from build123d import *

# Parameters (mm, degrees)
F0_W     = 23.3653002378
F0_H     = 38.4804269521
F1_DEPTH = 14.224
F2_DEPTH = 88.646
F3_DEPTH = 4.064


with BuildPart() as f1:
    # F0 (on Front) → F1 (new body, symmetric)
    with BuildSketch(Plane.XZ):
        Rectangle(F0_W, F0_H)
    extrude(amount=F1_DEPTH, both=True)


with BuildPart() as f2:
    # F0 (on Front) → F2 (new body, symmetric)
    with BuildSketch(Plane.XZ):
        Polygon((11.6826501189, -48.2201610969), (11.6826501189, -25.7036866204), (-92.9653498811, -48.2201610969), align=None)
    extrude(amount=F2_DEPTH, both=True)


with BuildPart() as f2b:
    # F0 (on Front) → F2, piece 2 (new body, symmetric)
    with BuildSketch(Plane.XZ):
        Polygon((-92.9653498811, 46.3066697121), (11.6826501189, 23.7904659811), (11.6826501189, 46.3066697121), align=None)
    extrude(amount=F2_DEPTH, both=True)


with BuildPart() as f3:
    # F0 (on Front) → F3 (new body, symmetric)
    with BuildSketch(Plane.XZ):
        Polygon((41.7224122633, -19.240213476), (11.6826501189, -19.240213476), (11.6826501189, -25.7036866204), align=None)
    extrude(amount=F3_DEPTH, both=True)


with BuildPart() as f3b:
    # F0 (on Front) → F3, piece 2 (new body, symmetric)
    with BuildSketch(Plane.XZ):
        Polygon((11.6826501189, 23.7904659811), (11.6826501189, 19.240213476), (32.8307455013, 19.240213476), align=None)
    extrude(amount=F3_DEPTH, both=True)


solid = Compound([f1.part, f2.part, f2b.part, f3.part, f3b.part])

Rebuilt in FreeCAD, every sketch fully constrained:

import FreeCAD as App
import Part
import Sketcher
Q = App.Units.Quantity

doc = App.newDocument("Part")
body = doc.addObject("PartDesign::Body", "Body")

sketch1 = body.newObject("Sketcher::SketchObject", "Sketch")
sketch1.AttachmentSupport = (doc.getObject("XZ_Plane"), [""])
sketch1.MapMode = "FlatFace"
sketch1.addGeometry([
    Part.LineSegment(App.Vector(-12, 19, 0), App.Vector(-12, -19, 0)),
    Part.LineSegment(App.Vector(-12, -19, 0), App.Vector(12, -19, 0)),
    Part.LineSegment(App.Vector(12, -19, 0), App.Vector(12, 19, 0)),
    Part.LineSegment(App.Vector(12, 19, 0), App.Vector(-12, 19, 0)),
], False)
sketch1.addConstraint([
    Sketcher.Constraint("Coincident", 0, 2, 1, 1),
    Sketcher.Constraint("Coincident", 1, 2, 2, 1),
    Sketcher.Constraint("Coincident", 2, 2, 3, 1),
    Sketcher.Constraint("Coincident", 3, 2, 0, 1),
    Sketcher.Constraint("Vertical", 0),
    Sketcher.Constraint("Horizontal", 1),
    Sketcher.Constraint("Vertical", 2),
    Sketcher.Constraint("Horizontal", 3),
    Sketcher.Constraint("Symmetric", 0, 2, 2, 2, -1, 1),
    Sketcher.Constraint("DistanceX", 1, 1, 1, 2, Q("23.3653 mm")),
    Sketcher.Constraint("DistanceY", 0, 2, 0, 1, Q("38.480427 mm")),
])
pad1 = body.newObject("PartDesign::Pad", "Pad")
pad1.Profile = sketch1
pad1.Length = Q("1.12 in")
pad1.Midplane = True
body2 = doc.addObject("PartDesign::Body", "Body001")

sketch2 = body2.newObject("Sketcher::SketchObject", "Sketch001")
sketch2.AttachmentSupport = (doc.getObject("XZ_Plane001"), [""])
sketch2.MapMode = "FlatFace"
sketch2.addGeometry([
    Part.LineSegment(App.Vector(12, -48, 0), App.Vector(12, -26, 0)),
    Part.LineSegment(App.Vector(12, -26, 0), App.Vector(-93, -48, 0)),
    Part.LineSegment(App.Vector(-93, -48, 0), App.Vector(12, -48, 0)),
], False)
sketch2.addConstraint([
    Sketcher.Constraint("Coincident", 0, 2, 1, 1),
    Sketcher.Constraint("Coincident", 1, 2, 2, 1),
    Sketcher.Constraint("Coincident", 2, 2, 0, 1),
    Sketcher.Constraint("Vertical", 0),
    Sketcher.Constraint("Horizontal", 2),
    Sketcher.Constraint("DistanceX", 2, 1, 2, 2, Q("4.12 in")),
    Sketcher.Constraint("Distance", 1, Q("107.042961 mm")),
    Sketcher.Constraint("DistanceX", -1, 1, 0, 2, Q("11.68265 mm")),
    Sketcher.Constraint("DistanceY", 1, 2, -1, 1, Q("48.220161 mm")),
])
pad2 = body2.newObject("PartDesign::Pad", "Pad001")
pad2.Profile = sketch2
pad2.Length = Q("6.98 in")
pad2.Midplane = True
body3 = doc.addObject("PartDesign::Body", "Body002")

sketch3 = body3.newObject("Sketcher::SketchObject", "Sketch002")
sketch3.AttachmentSupport = (doc.getObject("XZ_Plane002"), [""])
sketch3.MapMode = "FlatFace"
sketch3.addGeometry([
    Part.LineSegment(App.Vector(-93, 46, 0), App.Vector(12, 24, 0)),
    Part.LineSegment(App.Vector(12, 24, 0), App.Vector(12, 46, 0)),
    Part.LineSegment(App.Vector(12, 46, 0), App.Vector(-93, 46, 0)),
], False)
sketch3.addConstraint([
    Sketcher.Constraint("Coincident", 0, 2, 1, 1),
    Sketcher.Constraint("Coincident", 1, 2, 2, 1),
    Sketcher.Constraint("Coincident", 2, 2, 0, 1),
    Sketcher.Constraint("Vertical", 1),
    Sketcher.Constraint("Horizontal", 2),
    Sketcher.Constraint("DistanceX", 2, 2, 2, 1, Q("4.12 in")),
    Sketcher.Constraint("DistanceY", 1, 1, 1, 2, Q("22.516204 mm")),
    Sketcher.Constraint("DistanceX", -1, 1, 0, 2, Q("11.68265 mm")),
    Sketcher.Constraint("DistanceY", -1, 1, 1, 2, Q("46.30667 mm")),
])
pad3 = body3.newObject("PartDesign::Pad", "Pad002")
pad3.Profile = sketch3
pad3.Length = Q("6.98 in")
pad3.Midplane = True
body4 = doc.addObject("PartDesign::Body", "Body003")

sketch4 = body4.newObject("Sketcher::SketchObject", "Sketch003")
sketch4.AttachmentSupport = (doc.getObject("XZ_Plane003"), [""])
sketch4.MapMode = "FlatFace"
sketch4.addGeometry([
    Part.LineSegment(App.Vector(42, -19, 0), App.Vector(12, -19, 0)),
    Part.LineSegment(App.Vector(12, -19, 0), App.Vector(12, -26, 0)),
    Part.LineSegment(App.Vector(12, -26, 0), App.Vector(42, -19, 0)),
], False)
sketch4.addConstraint([
    Sketcher.Constraint("Coincident", 0, 2, 1, 1),
    Sketcher.Constraint("Coincident", 1, 2, 2, 1),
    Sketcher.Constraint("Coincident", 2, 2, 0, 1),
    Sketcher.Constraint("Horizontal", 0),
    Sketcher.Constraint("Vertical", 1),
    Sketcher.Constraint("Distance", 2, Q("30.727248 mm")),
    Sketcher.Constraint("DistanceX", 0, 2, 0, 1, Q("30.039762 mm")),
    Sketcher.Constraint("DistanceX", -1, 1, 0, 2, Q("11.68265 mm")),
    Sketcher.Constraint("DistanceY", 0, 2, -1, 1, Q("19.240213 mm")),
])
pad4 = body4.newObject("PartDesign::Pad", "Pad003")
pad4.Profile = sketch4
pad4.Length = Q("0.32 in")
pad4.Midplane = True
body5 = doc.addObject("PartDesign::Body", "Body004")

sketch5 = body5.newObject("Sketcher::SketchObject", "Sketch004")
sketch5.AttachmentSupport = (doc.getObject("XZ_Plane004"), [""])
sketch5.MapMode = "FlatFace"
sketch5.addGeometry([
    Part.LineSegment(App.Vector(11.7, 23.8, 0), App.Vector(11.7, 19.2, 0)),
    Part.LineSegment(App.Vector(11.7, 19.2, 0), App.Vector(32.8, 19.2, 0)),
    Part.LineSegment(App.Vector(32.8, 19.2, 0), App.Vector(11.7, 23.8, 0)),
], False)
sketch5.addConstraint([
    Sketcher.Constraint("Coincident", 0, 2, 1, 1),
    Sketcher.Constraint("Coincident", 1, 2, 2, 1),
    Sketcher.Constraint("Coincident", 2, 2, 0, 1),
    Sketcher.Constraint("Vertical", 0),
    Sketcher.Constraint("Horizontal", 1),
    Sketcher.Constraint("DistanceX", 1, 1, 1, 2, Q("21.148095 mm")),
    Sketcher.Constraint("DistanceY", 0, 2, 0, 1, Q("4.550253 mm")),
    Sketcher.Constraint("DistanceX", -1, 1, 0, 2, Q("11.68265 mm")),
    Sketcher.Constraint("DistanceY", -1, 1, 0, 2, Q("19.240213 mm")),
])
pad5 = body5.newObject("PartDesign::Pad", "Pad004")
pad5.Profile = sketch5
pad5.Length = Q("0.32 in")
pad5.Midplane = True

doc.recompute()
